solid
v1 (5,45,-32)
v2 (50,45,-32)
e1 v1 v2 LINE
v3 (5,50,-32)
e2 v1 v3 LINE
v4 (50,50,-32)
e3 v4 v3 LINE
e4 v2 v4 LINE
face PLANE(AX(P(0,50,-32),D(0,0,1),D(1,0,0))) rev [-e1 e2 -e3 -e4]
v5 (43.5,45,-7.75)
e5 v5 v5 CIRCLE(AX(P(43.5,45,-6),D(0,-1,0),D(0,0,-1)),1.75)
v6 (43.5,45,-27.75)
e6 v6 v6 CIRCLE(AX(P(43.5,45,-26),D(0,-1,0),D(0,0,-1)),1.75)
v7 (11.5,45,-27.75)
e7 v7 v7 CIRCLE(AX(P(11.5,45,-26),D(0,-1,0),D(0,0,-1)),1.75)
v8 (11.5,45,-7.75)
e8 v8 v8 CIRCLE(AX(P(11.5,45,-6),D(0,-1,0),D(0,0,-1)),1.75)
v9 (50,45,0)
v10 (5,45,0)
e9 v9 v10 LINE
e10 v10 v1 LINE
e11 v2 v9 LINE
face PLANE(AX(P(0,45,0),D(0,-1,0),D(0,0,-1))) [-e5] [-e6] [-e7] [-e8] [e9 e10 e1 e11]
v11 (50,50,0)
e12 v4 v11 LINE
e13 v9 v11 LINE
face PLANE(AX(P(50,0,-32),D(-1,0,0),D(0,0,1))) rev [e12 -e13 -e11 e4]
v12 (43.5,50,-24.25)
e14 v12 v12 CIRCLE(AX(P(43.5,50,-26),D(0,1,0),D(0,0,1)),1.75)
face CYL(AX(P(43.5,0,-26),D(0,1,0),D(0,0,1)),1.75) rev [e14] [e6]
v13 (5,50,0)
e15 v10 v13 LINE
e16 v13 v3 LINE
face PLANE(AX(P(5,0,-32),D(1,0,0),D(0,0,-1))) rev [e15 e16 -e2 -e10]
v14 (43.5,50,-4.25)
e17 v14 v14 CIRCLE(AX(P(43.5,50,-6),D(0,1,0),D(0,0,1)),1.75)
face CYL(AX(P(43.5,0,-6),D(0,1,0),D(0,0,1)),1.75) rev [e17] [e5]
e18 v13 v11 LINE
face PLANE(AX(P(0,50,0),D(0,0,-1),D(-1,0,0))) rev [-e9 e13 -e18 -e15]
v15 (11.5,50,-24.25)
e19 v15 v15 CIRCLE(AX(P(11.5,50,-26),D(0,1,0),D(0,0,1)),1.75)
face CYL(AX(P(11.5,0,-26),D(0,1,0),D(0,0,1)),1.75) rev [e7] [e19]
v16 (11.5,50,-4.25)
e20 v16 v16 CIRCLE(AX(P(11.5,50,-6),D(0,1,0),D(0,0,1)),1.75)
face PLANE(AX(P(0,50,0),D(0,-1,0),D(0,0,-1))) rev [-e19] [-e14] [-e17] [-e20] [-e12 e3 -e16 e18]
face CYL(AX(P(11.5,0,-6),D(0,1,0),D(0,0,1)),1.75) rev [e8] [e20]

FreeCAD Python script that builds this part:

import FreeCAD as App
import Part
import Sketcher
Q = App.Units.Quantity

doc = App.newDocument("Part")
body = doc.addObject("PartDesign::Body", "Body")

# Sketch on XZ plane
sketch1 = body.newObject("Sketcher::SketchObject", "Sketch")
sketch1.AttachmentSupport = (doc.getObject("XZ_Plane"), [""])
sketch1.MapMode = "FlatFace"
sketch1.addGeometry([
    Part.LineSegment(App.Vector(0, -32, 0), App.Vector(0, 0, 0)),
    Part.LineSegment(App.Vector(0, 0, 0), App.Vector(55, 0, 0)),
    Part.LineSegment(App.Vector(55, 0, 0), App.Vector(55, -32, 0)),
    Part.LineSegment(App.Vector(55, -32, 0), App.Vector(0, -32, 0)),
], False)
sketch1.addConstraint([
    Sketcher.Constraint("Coincident", 0, 2, 1, 1),
    Sketcher.Constraint("Coincident", 1, 2, 2, 1),
    Sketcher.Constraint("Coincident", 2, 2, 3, 1),
    Sketcher.Constraint("Coincident", 3, 2, 0, 1),
    Sketcher.Constraint("Vertical", 0),
    Sketcher.Constraint("Horizontal", 1),
    Sketcher.Constraint("Vertical", 2),
    Sketcher.Constraint("Horizontal", 3),
    Sketcher.Constraint("Coincident", 0, 2, -1, 1),
    Sketcher.Constraint("DistanceX", 1, 1, 1, 2, Q("55 mm")),
    Sketcher.Constraint("DistanceY", 0, 1, 0, 2, Q("32 mm")),
])
pad1 = body.newObject("PartDesign::Pad", "Pad")
pad1.Profile = sketch1
pad1.Length = 50
pad1.Reversed = True

# Sketch on XZ plane
sketch2 = body.newObject("Sketcher::SketchObject", "Sketch001")
sketch2.AttachmentSupport = (doc.getObject("XZ_Plane"), [""])
sketch2.MapMode = "FlatFace"
sketch2.addGeometry([
    Part.LineSegment(App.Vector(5, 0, 0), App.Vector(5, -32, 0)),
    Part.LineSegment(App.Vector(5, -32, 0), App.Vector(50, -32, 0)),
    Part.LineSegment(App.Vector(50, -32, 0), App.Vector(50, 0, 0)),
    Part.LineSegment(App.Vector(50, 0, 0), App.Vector(5, 0, 0)),
], False)
sketch2.addConstraint([
    Sketcher.Constraint("Coincident", 0, 2, 1, 1),
    Sketcher.Constraint("Coincident", 1, 2, 2, 1),
    Sketcher.Constraint("Coincident", 2, 2, 3, 1),
    Sketcher.Constraint("Coincident", 3, 2, 0, 1),
    Sketcher.Constraint("Vertical", 0),
    Sketcher.Constraint("Horizontal", 1),
    Sketcher.Constraint("Vertical", 2),
    Sketcher.Constraint("Horizontal", 3),
    Sketcher.Constraint("PointOnObject", 2, 2, -1),
    Sketcher.Constraint("DistanceX", 1, 1, 1, 2, Q("45 mm")),
    Sketcher.Constraint("DistanceY", 0, 2, 0, 1, Q("32 mm")),
    Sketcher.Constraint("DistanceX", -1, 1, 0, 2, Q("5 mm")),
])
pocket1 = body.newObject("PartDesign::Pocket", "Pocket")
pocket1.Profile = sketch2
pocket1.Length = 45

# Sketch on XZ plane
sketch3 = body.newObject("Sketcher::SketchObject", "Sketch002")
sketch3.AttachmentSupport = (doc.getObject("XZ_Plane"), [""])
sketch3.MapMode = "FlatFace"
sketch3.AttachmentOffset = App.Placement(App.Vector(0, 0, -50), App.Rotation())
sketch3.addGeometry([
    Part.Circle(App.Vector(43.5, -26, 0), App.Vector(0, 0, 1), 1.75),
    Part.Circle(App.Vector(43.5, -6, 0), App.Vector(0, 0, 1), 1.75),
    Part.Circle(App.Vector(11.5, -26, 0), App.Vector(0, 0, 1), 1.75),
    Part.Circle(App.Vector(11.5, -6, 0), App.Vector(0, 0, 1), 1.75),
], False)
sketch3.addConstraint([
    Sketcher.Constraint("Equal", 0, 1),
    Sketcher.Constraint("Equal", 1, 2),
    Sketcher.Constraint("Equal", 2, 3),
    Sketcher.Constraint("Horizontal", 0, 3, 2, 3),
    Sketcher.Constraint("Horizontal", 1, 3, 3, 3),
    Sketcher.Constraint("Vertical", 0, 3, 1, 3),
    Sketcher.Constraint("Vertical", 2, 3, 3, 3),
    Sketcher.Constraint("Diameter", 0, Q("3.5 mm")),
    Sketcher.Constraint("DistanceY", 0, 3, -1, 1, Q("26 mm")),
    Sketcher.Constraint("DistanceY", 1, 3, -1, 1, Q("6 mm")),
    Sketcher.Constraint("DistanceX", 2, 3, 0, 3, Q("32 mm")),
    Sketcher.Constraint("DistanceX", -1, 1, 0, 3, Q("43.5 mm")),
])
pocket2 = body.newObject("PartDesign::Pocket", "Pocket001")
pocket2.Profile = sketch3
pocket2.Type = "ThroughAll"
pocket2.Reversed = True

# Sketch on YZ plane
sketch4 = body.newObject("Sketcher::SketchObject", "Sketch003")
sketch4.AttachmentSupport = (doc.getObject("YZ_Plane"), [""])
sketch4.MapMode = "FlatFace"
sketch4.AttachmentOffset = App.Placement(App.Vector(0, 0, 55), App.Rotation())
sketch4.addGeometry([
    Part.Circle(App.Vector(5, -6, 0), App.Vector(0, 0, 1), 1.75),
    Part.Circle(App.Vector(5, -26, 0), App.Vector(0, 0, 1), 1.75),
], False)
sketch4.addConstraint([
    Sketcher.Constraint("Equal", 0, 1),
    Sketcher.Constraint("Vertical", 0, 3, 1, 3),
    Sketcher.Constraint("Diameter", 0, Q("3.5 mm")),
    Sketcher.Constraint("DistanceX", -1, 1, 0, 3, Q("5 mm")),
    Sketcher.Constraint("DistanceY", 0, 3, -1, 1, Q("6 mm")),
    Sketcher.Constraint("DistanceY", 1, 3, -1, 1, Q("26 mm")),
])
pocket3 = body.newObject("PartDesign::Pocket", "Pocket002")
pocket3.Profile = sketch4
pocket3.Type = "ThroughAll"

# Sketch on YZ plane
sketch5 = body.newObject("Sketcher::SketchObject", "Sketch004")
sketch5.AttachmentSupport = (doc.getObject("YZ_Plane"), [""])
sketch5.MapMode = "FlatFace"
sketch5.AttachmentOffset = App.Placement(App.Vector(0, 0, 50), App.Rotation())
sketch5.addGeometry([
    Part.LineSegment(App.Vector(45, -30, 0), App.Vector(10, -30, 0)),  # 0
    Part.LineSegment(App.Vector(10, -30, 0), App.Vector(10, -28.9, 0)),  # 1
    Part.LineSegment(App.Vector(10, -28.9, 0), App.Vector(45, -28.9, 0)),  # 2
    Part.LineSegment(App.Vector(45, -28.9, 0), App.Vector(45, -30, 0)),  # 3
    Part.LineSegment(App.Vector(45, -32, 0), App.Vector(10, -32, 0)),  # 4
    Part.LineSegment(App.Vector(10, -32, 0), App.Vector(10, -30.9, 0)),  # 5
    Part.LineSegment(App.Vector(10, -30.9, 0), App.Vector(45, -30.9, 0)),  # 6
    Part.LineSegment(App.Vector(45, -30.9, 0), App.Vector(45, -32, 0)),  # 7
    Part.LineSegment(App.Vector(45, -28, 0), App.Vector(10, -28, 0)),  # 8
    Part.LineSegment(App.Vector(10, -28, 0), App.Vector(10, -26.9, 0)),  # 9
    Part.LineSegment(App.Vector(10, -26.9, 0), App.Vector(45, -26.9, 0)),  # 10
    Part.LineSegment(App.Vector(45, -26.9, 0), App.Vector(45, -28, 0)),  # 11
    Part.LineSegment(App.Vector(45, -26, 0), App.Vector(10, -26, 0)),  # 12
    Part.LineSegment(App.Vector(10, -26, 0), App.Vector(10, -24.9, 0)),  # 13
    Part.LineSegment(App.Vector(10, -24.9, 0), App.Vector(45, -24.9, 0)),  # 14
    Part.LineSegment(App.Vector(45, -24.9, 0), App.Vector(45, -26, 0)),  # 15
    Part.LineSegment(App.Vector(45, -24, 0), App.Vector(10, -24, 0)),  # 16
    Part.LineSegment(App.Vector(10, -24, 0), App.Vector(10, -22.9, 0)),  # 17
    Part.LineSegment(App.Vector(10, -22.9, 0), App.Vector(45, -22.9, 0)),  # 18
    Part.LineSegment(App.Vector(45, -22.9, 0), App.Vector(45, -24, 0)),  # 19
    Part.LineSegment(App.Vector(45, -22, 0), App.Vector(10, -22, 0)),  # 20
    Part.LineSegment(App.Vector(10, -22, 0), App.Vector(10, -20.9, 0)),  # 21
    Part.LineSegment(App.Vector(10, -20.9, 0), App.Vector(45, -20.9, 0)),  # 22
    Part.LineSegment(App.Vector(45, -20.9, 0), App.Vector(45, -22, 0)),  # 23
    Part.LineSegment(App.Vector(45, -20, 0), App.Vector(10, -20, 0)),  # 24
    Part.LineSegment(App.Vector(10, -20, 0), App.Vector(10, -18.9, 0)),  # 25
    Part.LineSegment(App.Vector(10, -18.9, 0), App.Vector(45, -18.9, 0)),  # 26
    Part.LineSegment(App.Vector(45, -18.9, 0), App.Vector(45, -20, 0)),  # 27
    Part.LineSegment(App.Vector(45, -18, 0), App.Vector(10, -18, 0)),  # 28
    Part.LineSegment(App.Vector(10, -18, 0), App.Vector(10, -16.9, 0)),  # 29
    Part.LineSegment(App.Vector(10, -16.9, 0), App.Vector(45, -16.9, 0)),  # 30
    Part.LineSegment(App.Vector(45, -16.9, 0), App.Vector(45, -18, 0)),  # 31
    Part.LineSegment(App.Vector(45, -16, 0), App.Vector(10, -16, 0)),  # 32
    Part.LineSegment(App.Vector(10, -16, 0), App.Vector(10, -14.9, 0)),  # 33
    Part.LineSegment(App.Vector(10, -14.9, 0), App.Vector(45, -14.9, 0)),  # 34
    Part.LineSegment(App.Vector(45, -14.9, 0), App.Vector(45, -16, 0)),  # 35
    Part.LineSegment(App.Vector(45, -14, 0), App.Vector(10, -14, 0)),  # 36
    Part.LineSegment(App.Vector(10, -14, 0), App.Vector(10, -12.9, 0)),  # 37
    Part.LineSegment(App.Vector(10, -12.9, 0), App.Vector(45, -12.9, 0)),  # 38
    Part.LineSegment(App.Vector(45, -12.9, 0), App.Vector(45, -14, 0)),  # 39
    Part.LineSegment(App.Vector(45, -12, 0), App.Vector(10, -12, 0)),  # 40
    Part.LineSegment(App.Vector(10, -12, 0), App.Vector(10, -10.9, 0)),  # 41
    Part.LineSegment(App.Vector(10, -10.9, 0), App.Vector(45, -10.9, 0)),  # 42
    Part.LineSegment(App.Vector(45, -10.9, 0), App.Vector(45, -12, 0)),  # 43
    Part.LineSegment(App.Vector(45, -10, 0), App.Vector(10, -10, 0)),  # 44
    Part.LineSegment(App.Vector(10, -10, 0), App.Vector(10, -8.9, 0)),  # 45
    Part.LineSegment(App.Vector(10, -8.9, 0), App.Vector(45, -8.9, 0)),  # 46
    Part.LineSegment(App.Vector(45, -8.9, 0), App.Vector(45, -10, 0)),  # 47
    Part.LineSegment(App.Vector(45, -8, 0), App.Vector(10, -8, 0)),  # 48
    Part.LineSegment(App.Vector(10, -8, 0), App.Vector(10, -6.9, 0)),  # 49
    Part.LineSegment(App.Vector(10, -6.9, 0), App.Vector(45, -6.9, 0)),  # 50
    Part.LineSegment(App.Vector(45, -6.9, 0), App.Vector(45, -8, 0)),  # 51
    Part.LineSegment(App.Vector(45, -6, 0), App.Vector(10, -6, 0)),  # 52
    Part.LineSegment(App.Vector(10, -6, 0), App.Vector(10, -4.9, 0)),  # 53
    Part.LineSegment(App.Vector(10, -4.9, 0), App.Vector(45, -4.9, 0)),  # 54
    Part.LineSegment(App.Vector(45, -4.9, 0), App.Vector(45, -6, 0)),  # 55
    Part.LineSegment(App.Vector(45, -4, 0), App.Vector(10, -4, 0)),  # 56
    Part.LineSegment(App.Vector(10, -4, 0), App.Vector(10, -2.9, 0)),  # 57
    Part.LineSegment(App.Vector(10, -2.9, 0), App.Vector(45, -2.9, 0)),  # 58
    Part.LineSegment(App.Vector(45, -2.9, 0), App.Vector(45, -4, 0)),  # 59
    Part.LineSegment(App.Vector(45, -2, 0), App.Vector(10, -2, 0)),  # 60
    Part.LineSegment(App.Vector(10, -2, 0), App.Vector(10, -0.9, 0)),  # 61
    Part.LineSegment(App.Vector(10, -0.9, 0), App.Vector(45, -0.9, 0)),  # 62
    Part.LineSegment(App.Vector(45, -0.9, 0), App.Vector(45, -2, 0)),  # 63
    Part.LineSegment(App.Vector(45, 0, 0), App.Vector(10, 0, 0)),  # 64
    Part.LineSegment(App.Vector(10, 0, 0), App.Vector(10, 1.1, 0)),  # 65
    Part.LineSegment(App.Vector(10, 1.1, 0), App.Vector(45, 1.1, 0)),  # 66
    Part.LineSegment(App.Vector(45, 1.1, 0), App.Vector(45, 0, 0)),  # 67
], False)
sketch5.addConstraint([
    Sketcher.Constraint("Coincident", 0, 2, 1, 1),
    Sketcher.Constraint("Coincident", 1, 2, 2, 1),
    Sketcher.Constraint("Coincident", 2, 2, 3, 1),
    Sketcher.Constraint("Coincident", 3, 2, 0, 1),
    Sketcher.Constraint("Coincident", 4, 2, 5, 1),
    Sketcher.Constraint("Coincident", 5, 2, 6, 1),
    Sketcher.Constraint("Coincident", 6, 2, 7, 1),
    Sketcher.Constraint("Coincident", 7, 2, 4, 1),
    Sketcher.Constraint("Coincident", 8, 2, 9, 1),
    Sketcher.Constraint("Coincident", 9, 2, 10, 1),
    Sketcher.Constraint("Coincident", 10, 2, 11, 1),
    Sketcher.Constraint("Coincident", 11, 2, 8, 1),
    Sketcher.Constraint("Coincident", 12, 2, 13, 1),
    Sketcher.Constraint("Coincident", 13, 2, 14, 1),
    Sketcher.Constraint("Coincident", 14, 2, 15, 1),
    Sketcher.Constraint("Coincident", 15, 2, 12, 1),
    Sketcher.Constraint("Coincident", 16, 2, 17, 1),
    Sketcher.Constraint("Coincident", 17, 2, 18, 1),
    Sketcher.Constraint("Coincident", 18, 2, 19, 1),
    Sketcher.Constraint("Coincident", 19, 2, 16, 1),
    Sketcher.Constraint("Coincident", 20, 2, 21, 1),
    Sketcher.Constraint("Coincident", 21, 2, 22, 1),
    Sketcher.Constraint("Coincident", 22, 2, 23, 1),
    Sketcher.Constraint("Coincident", 23, 2, 20, 1),
    Sketcher.Constraint("Coincident", 24, 2, 25, 1),
    Sketcher.Constraint("Coincident", 25, 2, 26, 1),
    Sketcher.Constraint("Coincident", 26, 2, 27, 1),
    Sketcher.Constraint("Coincident", 27, 2, 24, 1),
    Sketcher.Constraint("Coincident", 28, 2, 29, 1),
    Sketcher.Constraint("Coincident", 29, 2, 30, 1),
    Sketcher.Constraint("Coincident", 30, 2, 31, 1),
    Sketcher.Constraint("Coincident", 31, 2, 28, 1),
    Sketcher.Constraint("Coincident", 32, 2, 33, 1),
    Sketcher.Constraint("Coincident", 33, 2, 34, 1),
    Sketcher.Constraint("Coincident", 34, 2, 35, 1),
    Sketcher.Constraint("Coincident", 35, 2, 32, 1),
    Sketcher.Constraint("Coincident", 36, 2, 37, 1),
    Sketcher.Constraint("Coincident", 37, 2, 38, 1),
    Sketcher.Constraint("Coincident", 38, 2, 39, 1),
    Sketcher.Constraint("Coincident", 39, 2, 36, 1),
    Sketcher.Constraint("Coincident", 40, 2, 41, 1),
    Sketcher.Constraint("Coincident", 41, 2, 42, 1),
    Sketcher.Constraint("Coincident", 42, 2, 43, 1),
    Sketcher.Constraint("Coincident", 43, 2, 40, 1),
    Sketcher.Constraint("Coincident", 44, 2, 45, 1),
    Sketcher.Constraint("Coincident", 45, 2, 46, 1),
    Sketcher.Constraint("Coincident", 46, 2, 47, 1),
    Sketcher.Constraint("Coincident", 47, 2, 44, 1),
    Sketcher.Constraint("Coincident", 48, 2, 49, 1),
    Sketcher.Constraint("Coincident", 49, 2, 50, 1),
    Sketcher.Constraint("Coincident", 50, 2, 51, 1),
    Sketcher.Constraint("Coincident", 51, 2, 48, 1),
    Sketcher.Constraint("Coincident", 52, 2, 53, 1),
    Sketcher.Constraint("Coincident", 53, 2, 54, 1),
    Sketcher.Constraint("Coincident", 54, 2, 55, 1),
    Sketcher.Constraint("Coincident", 55, 2, 52, 1),
    Sketcher.Constraint("Coincident", 56, 2, 57, 1),
    Sketcher.Constraint("Coincident", 57, 2, 58, 1),
    Sketcher.Constraint("Coincident", 58, 2, 59, 1),
    Sketcher.Constraint("Coincident", 59, 2, 56, 1),
    Sketcher.Constraint("Coincident", 60, 2, 61, 1),
    Sketcher.Constraint("Coincident", 61, 2, 62, 1),
    Sketcher.Constraint("Coincident", 62, 2, 63, 1),
    Sketcher.Constraint("Coincident", 63, 2, 60, 1),
    Sketcher.Constraint("Coincident", 64, 2, 65, 1),
    Sketcher.Constraint("Coincident", 65, 2, 66, 1),
    Sketcher.Constraint("Coincident", 66, 2, 67, 1),
    Sketcher.Constraint("Coincident", 67, 2, 64, 1),
    Sketcher.Constraint("Horizontal", 0),
    Sketcher.Constraint("Vertical", 1),
    Sketcher.Constraint("Horizontal", 2),
    Sketcher.Constraint("Vertical", 3),
    Sketcher.Constraint("Horizontal", 4),
    Sketcher.Constraint("Vertical", 5),
    Sketcher.Constraint("Horizontal", 6),
    Sketcher.Constraint("Vertical", 7),
    Sketcher.Constraint("Horizontal", 8),
    Sketcher.Constraint("Vertical", 9),
    Sketcher.Constraint("Horizontal", 10),
    Sketcher.Constraint("Vertical", 11),
    Sketcher.Constraint("Horizontal", 12),
    Sketcher.Constraint("Vertical", 13),
    Sketcher.Constraint("Horizontal", 14),
    Sketcher.Constraint("Vertical", 15),
    Sketcher.Constraint("Horizontal", 16),
    Sketcher.Constraint("Vertical", 17),
    Sketcher.Constraint("Horizontal", 18),
    Sketcher.Constraint("Vertical", 19),
    Sketcher.Constraint("Horizontal", 20),
    Sketcher.Constraint("Vertical", 21),
    Sketcher.Constraint("Horizontal", 22),
    Sketcher.Constraint("Vertical", 23),
    Sketcher.Constraint("Horizontal", 24),
    Sketcher.Constraint("Vertical", 25),
    Sketcher.Constraint("Horizontal", 26),
    Sketcher.Constraint("Vertical", 27),
    Sketcher.Constraint("Horizontal", 28),
    Sketcher.Constraint("Vertical", 29),
    Sketcher.Constraint("Horizontal", 30),
    Sketcher.Constraint("Vertical", 31),
    Sketcher.Constraint("Horizontal", 32),
    Sketcher.Constraint("Vertical", 33),
    Sketcher.Constraint("Horizontal", 34),
    Sketcher.Constraint("Vertical", 35),
    Sketcher.Constraint("Horizontal", 36),
    Sketcher.Constraint("Vertical", 37),
    Sketcher.Constraint("Horizontal", 38),
    Sketcher.Constraint("Vertical", 39),
    Sketcher.Constraint("Horizontal", 40),
    Sketcher.Constraint("Vertical", 41),
    Sketcher.Constraint("Horizontal", 42),
    Sketcher.Constraint("Vertical", 43),
    Sketcher.Constraint("Horizontal", 44),
    Sketcher.Constraint("Vertical", 45),
    Sketcher.Constraint("Horizontal", 46),
    Sketcher.Constraint("Vertical", 47),
    Sketcher.Constraint("Horizontal", 48),
    Sketcher.Constraint("Vertical", 49),
    Sketcher.Constraint("Horizontal", 50),
    Sketcher.Constraint("Vertical", 51),
    Sketcher.Constraint("Horizontal", 52),
    Sketcher.Constraint("Vertical", 53),
    Sketcher.Constraint("Horizontal", 54),
    Sketcher.Constraint("Vertical", 55),
    Sketcher.Constraint("Horizontal", 56),
    Sketcher.Constraint("Vertical", 57),
    Sketcher.Constraint("Horizontal", 58),
    Sketcher.Constraint("Vertical", 59),
    Sketcher.Constraint("Horizontal", 60),
    Sketcher.Constraint("Vertical", 61),
    Sketcher.Constraint("Horizontal", 62),
    Sketcher.Constraint("Vertical", 63),
    Sketcher.Constraint("Horizontal", 64),
    Sketcher.Constraint("Vertical", 65),
    Sketcher.Constraint("Horizontal", 66),
    Sketcher.Constraint("Vertical", 67),
    Sketcher.Constraint("PointOnObject", 64, 2, -1),
    Sketcher.Constraint("Vertical", 1, 2, 4, 2),
    Sketcher.Constraint("Vertical", 3, 2, 6, 2),
    Sketcher.Constraint("Vertical", 5, 2, 8, 2),
    Sketcher.Constraint("Vertical", 7, 2, 10, 2),
    Sketcher.Constraint("Vertical", 9, 2, 12, 2),
    Sketcher.Constraint("Vertical", 11, 2, 14, 2),
    Sketcher.Constraint("Vertical", 13, 2, 16, 2),
    Sketcher.Constraint("Vertical", 15, 2, 18, 2),
    Sketcher.Constraint("Vertical", 17, 2, 20, 2),
    Sketcher.Constraint("Vertical", 19, 2, 22, 2),
    Sketcher.Constraint("Vertical", 21, 2, 24, 2),
    Sketcher.Constraint("Vertical", 23, 2, 26, 2),
    Sketcher.Constraint("Vertical", 25, 2, 28, 2),
    Sketcher.Constraint("Vertical", 27, 2, 30, 2),
    Sketcher.Constraint("Vertical", 29, 2, 32, 2),
    Sketcher.Constraint("Vertical", 31, 2, 34, 2),
    Sketcher.Constraint("Vertical", 33, 2, 36, 2),
    Sketcher.Constraint("Vertical", 35, 2, 38, 2),
    Sketcher.Constraint("Vertical", 37, 2, 40, 2),
    Sketcher.Constraint("Vertical", 39, 2, 42, 2),
    Sketcher.Constraint("Vertical", 41, 2, 44, 2),
    Sketcher.Constraint("Vertical", 43, 2, 46, 2),
    Sketcher.Constraint("Vertical", 45, 2, 48, 2),
    Sketcher.Constraint("Vertical", 47, 2, 50, 2),
    Sketcher.Constraint("Vertical", 49, 2, 52, 2),
    Sketcher.Constraint("Vertical", 51, 2, 54, 2),
    Sketcher.Constraint("Vertical", 53, 2, 56, 2),
    Sketcher.Constraint("Vertical", 55, 2, 58, 2),
    Sketcher.Constraint("Vertical", 57, 2, 60, 2),
    Sketcher.Constraint("Vertical", 59, 2, 62, 2),
    Sketcher.Constraint("Vertical", 61, 2, 64, 2),
    Sketcher.Constraint("Vertical", 63, 2, 66, 2),
    Sketcher.Constraint("Equal", 3, 5),
    Sketcher.Constraint("Equal", 7, 9),
    Sketcher.Constraint("Equal", 11, 13),
    Sketcher.Constraint("Equal", 15, 17),
    Sketcher.Constraint("Equal", 19, 21),
    Sketcher.Constraint("Equal", 23, 25),
    Sketcher.Constraint("Equal", 27, 29),
    Sketcher.Constraint("Equal", 31, 33),
    Sketcher.Constraint("Equal", 35, 37),
    Sketcher.Constraint("Equal", 39, 41),
    Sketcher.Constraint("Equal", 43, 45),
    Sketcher.Constraint("Equal", 47, 49),
    Sketcher.Constraint("Equal", 51, 53),
    Sketcher.Constraint("Equal", 55, 57),
    Sketcher.Constraint("Equal", 59, 61),
    Sketcher.Constraint("Equal", 63, 65),
    Sketcher.Constraint("DistanceX", 0, 2, 0, 1, Q("35 mm")),
    Sketcher.Constraint("DistanceY", 1, 1, 1, 2, Q("1.1 mm")),
    Sketcher.Constraint("DistanceX", -1, 1, 0, 2, Q("10 mm")),
    Sketcher.Constraint("DistanceY", 0, 2, -1, 1, Q("30 mm")),
    Sketcher.Constraint("DistanceY", 4, 2, -1, 1, Q("32 mm")),
    Sketcher.Constraint("DistanceY", 8, 2, -1, 1, Q("28 mm")),
    Sketcher.Constraint("DistanceY", 12, 2, -1, 1, Q("26 mm")),
    Sketcher.Constraint("DistanceY", 16, 2, -1, 1, Q("24 mm")),
    Sketcher.Constraint("DistanceY", 20, 2, -1, 1, Q("22 mm")),
    Sketcher.Constraint("DistanceY", 24, 2, -1, 1, Q("20 mm")),
    Sketcher.Constraint("DistanceY", 28, 2, -1, 1, Q("18 mm")),
    Sketcher.Constraint("DistanceY", 32, 2, -1, 1, Q("16 mm")),
    Sketcher.Constraint("DistanceY", 36, 2, -1, 1, Q("14 mm")),
    Sketcher.Constraint("DistanceY", 40, 2, -1, 1, Q("12 mm")),
    Sketcher.Constraint("DistanceY", 44, 2, -1, 1, Q("10 mm")),
    Sketcher.Constraint("DistanceY", 48, 2, -1, 1, Q("8 mm")),
    Sketcher.Constraint("DistanceY", 52, 2, -1, 1, Q("6 mm")),
    Sketcher.Constraint("DistanceY", 56, 2, -1, 1, Q("4 mm")),
    Sketcher.Constraint("DistanceY", 60, 2, -1, 1, Q("2 mm")),
])
pocket4 = body.newObject("PartDesign::Pocket", "Pocket003")
pocket4.Profile = sketch5
pocket4.Length = 1.2
pocket4.Reversed = True

# Sketch on XZ plane
sketch6 = body.newObject("Sketcher::SketchObject", "Sketch005")
sketch6.AttachmentSupport = (doc.getObject("XZ_Plane"), [""])
sketch6.MapMode = "FlatFace"
sketch6.AttachmentOffset = App.Placement(App.Vector(0, 0, -50), App.Rotation())
sketch6.addGeometry([
    Part.LineSegment(App.Vector(50, -32, 0), App.Vector(50, 0, 0)),  # 0
    Part.LineSegment(App.Vector(50, 0, 0), App.Vector(55, 0, 0)),  # 1
    Part.LineSegment(App.Vector(55, 0, 0), App.Vector(55, -32, 0)),  # 2
    Part.LineSegment(App.Vector(55, -32, 0), App.Vector(50, -32, 0)),  # 3
    Part.LineSegment(App.Vector(0, -32, 0), App.Vector(0, 0, 0)),  # 4
    Part.LineSegment(App.Vector(0, 0, 0), App.Vector(5, 0, 0)),  # 5
    Part.LineSegment(App.Vector(5, 0, 0), App.Vector(5, -32, 0)),  # 6
    Part.LineSegment(App.Vector(5, -32, 0), App.Vector(0, -32, 0)),  # 7
], False)
sketch6.addConstraint([
    Sketcher.Constraint("Coincident", 0, 2, 1, 1),
    Sketcher.Constraint("Coincident", 1, 2, 2, 1),
    Sketcher.Constraint("Coincident", 2, 2, 3, 1),
    Sketcher.Constraint("Coincident", 3, 2, 0, 1),
    Sketcher.Constraint("Coincident", 4, 2, 5, 1),
    Sketcher.Constraint("Coincident", 5, 2, 6, 1),
    Sketcher.Constraint("Coincident", 6, 2, 7, 1),
    Sketcher.Constraint("Coincident", 7, 2, 4, 1),
    Sketcher.Constraint("Vertical", 0),
    Sketcher.Constraint("Horizontal", 1),
    Sketcher.Constraint("Vertical", 2),
    Sketcher.Constraint("Horizontal", 3),
    Sketcher.Constraint("Vertical", 4),
    Sketcher.Constraint("Horizontal", 5),
    Sketcher.Constraint("Vertical", 6),
    Sketcher.Constraint("Horizontal", 7),
    Sketcher.Constraint("Coincident", 4, 2, -1, 1),
    Sketcher.Constraint("PointOnObject", 0, 2, -1),
    Sketcher.Constraint("Horizontal", 3, 2, 6, 2),
    Sketcher.Constraint("Equal", 3, 5),
    Sketcher.Constraint("DistanceX", 1, 1, 1, 2, Q("5 mm")),
    Sketcher.Constraint("DistanceY", 0, 1, 0, 2, Q("32 mm")),
    Sketcher.Constraint("DistanceX", -1, 1, 0, 2, Q("50 mm")),
])
pocket5 = body.newObject("PartDesign::Pocket", "Pocket004")
pocket5.Profile = sketch6
pocket5.Type = "ThroughAll"
pocket5.Reversed = True

doc.recompute()
